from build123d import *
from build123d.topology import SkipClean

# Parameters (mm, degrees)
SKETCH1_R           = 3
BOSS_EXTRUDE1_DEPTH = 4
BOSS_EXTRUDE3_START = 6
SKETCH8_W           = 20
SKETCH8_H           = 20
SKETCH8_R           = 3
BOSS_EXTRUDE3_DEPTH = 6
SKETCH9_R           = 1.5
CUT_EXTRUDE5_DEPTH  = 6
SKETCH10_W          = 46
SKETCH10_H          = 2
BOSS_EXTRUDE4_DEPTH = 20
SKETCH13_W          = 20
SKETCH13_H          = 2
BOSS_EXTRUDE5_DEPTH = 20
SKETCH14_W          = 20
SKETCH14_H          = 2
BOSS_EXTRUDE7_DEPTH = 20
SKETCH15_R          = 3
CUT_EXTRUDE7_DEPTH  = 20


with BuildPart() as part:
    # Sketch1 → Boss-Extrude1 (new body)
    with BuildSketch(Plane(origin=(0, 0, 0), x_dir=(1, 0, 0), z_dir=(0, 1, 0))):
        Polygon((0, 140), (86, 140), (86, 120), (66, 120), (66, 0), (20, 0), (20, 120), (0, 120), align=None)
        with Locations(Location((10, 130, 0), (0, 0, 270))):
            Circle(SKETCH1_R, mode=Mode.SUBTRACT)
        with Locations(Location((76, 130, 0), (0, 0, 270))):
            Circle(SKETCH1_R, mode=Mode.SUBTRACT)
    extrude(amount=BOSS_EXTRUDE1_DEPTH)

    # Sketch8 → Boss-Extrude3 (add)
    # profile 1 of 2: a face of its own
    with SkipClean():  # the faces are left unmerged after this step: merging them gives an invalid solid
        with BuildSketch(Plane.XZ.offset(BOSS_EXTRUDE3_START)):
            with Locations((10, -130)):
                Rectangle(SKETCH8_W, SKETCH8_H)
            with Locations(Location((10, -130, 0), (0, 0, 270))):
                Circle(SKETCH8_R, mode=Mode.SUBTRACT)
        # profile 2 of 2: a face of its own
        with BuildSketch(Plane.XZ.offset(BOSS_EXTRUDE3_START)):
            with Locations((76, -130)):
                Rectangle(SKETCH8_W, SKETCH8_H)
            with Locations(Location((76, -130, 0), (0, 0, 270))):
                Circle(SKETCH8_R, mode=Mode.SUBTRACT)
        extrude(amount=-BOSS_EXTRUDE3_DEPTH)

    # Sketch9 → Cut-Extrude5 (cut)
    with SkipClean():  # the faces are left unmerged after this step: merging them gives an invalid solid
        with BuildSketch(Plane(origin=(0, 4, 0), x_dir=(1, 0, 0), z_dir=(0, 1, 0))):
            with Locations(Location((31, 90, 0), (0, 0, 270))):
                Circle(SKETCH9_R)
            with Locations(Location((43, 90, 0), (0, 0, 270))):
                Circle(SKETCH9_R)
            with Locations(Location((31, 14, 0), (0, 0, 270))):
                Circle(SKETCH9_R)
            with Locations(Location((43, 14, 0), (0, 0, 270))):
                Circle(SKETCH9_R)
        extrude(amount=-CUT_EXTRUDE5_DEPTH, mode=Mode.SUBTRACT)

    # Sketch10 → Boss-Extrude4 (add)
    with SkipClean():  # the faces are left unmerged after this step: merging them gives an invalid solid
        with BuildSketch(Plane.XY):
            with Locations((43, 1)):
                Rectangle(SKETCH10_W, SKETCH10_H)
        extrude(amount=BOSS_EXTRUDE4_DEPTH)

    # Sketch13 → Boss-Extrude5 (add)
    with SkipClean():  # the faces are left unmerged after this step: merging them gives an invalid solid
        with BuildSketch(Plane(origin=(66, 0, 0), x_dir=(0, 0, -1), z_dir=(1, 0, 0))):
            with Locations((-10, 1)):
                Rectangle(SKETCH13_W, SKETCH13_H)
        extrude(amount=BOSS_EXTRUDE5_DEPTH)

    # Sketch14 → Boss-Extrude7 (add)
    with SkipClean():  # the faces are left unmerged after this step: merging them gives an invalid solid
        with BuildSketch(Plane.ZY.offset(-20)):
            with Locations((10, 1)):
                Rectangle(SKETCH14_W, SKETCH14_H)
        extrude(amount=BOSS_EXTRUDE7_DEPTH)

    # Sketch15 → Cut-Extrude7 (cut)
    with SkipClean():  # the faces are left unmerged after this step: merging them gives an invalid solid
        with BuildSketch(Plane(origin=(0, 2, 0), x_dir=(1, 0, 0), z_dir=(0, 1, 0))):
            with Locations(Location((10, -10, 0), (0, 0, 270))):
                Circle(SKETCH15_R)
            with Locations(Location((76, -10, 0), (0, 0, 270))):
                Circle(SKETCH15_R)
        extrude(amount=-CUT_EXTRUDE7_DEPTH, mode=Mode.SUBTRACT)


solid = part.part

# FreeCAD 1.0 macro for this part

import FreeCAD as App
import Part
import Sketcher
from FreeCAD import Vector
Q = App.Units.Quantity

doc = App.newDocument("Part")
params = doc.addObject("Spreadsheet::Sheet", "Params")
for row, (alias, value) in enumerate([
    ("sketch1_diameter", "6 mm"),
    ("sketch1_width", "86 mm"),
    ("sketch1_width2", "20 mm"),
    ("sketch1_height", "120 mm"),
    ("pad1_length", "4 mm"),
    ("sketch2_diameter", "6 mm"),
    ("sketch2_width", "20 mm"),
    ("pad2_length", "6 mm"),
    ("sketch3_diameter", "3 mm"),
    ("pocket1_length", "6 mm"),
    ("sketch4_width", "46 mm"),
    ("sketch4_height", "2 mm"),
    ("pad3_length", "20 mm"),
    ("sketch5_width", "2 mm"),
    ("sketch5_height", "20 mm"),
    ("pad4_length", "20 mm"),
    ("sketch6_width", "2 mm"),
    ("sketch6_height", "20 mm"),
    ("pad5_length", "20 mm"),
    ("sketch7_diameter", "6 mm"),
    ("pocket2_length", "20 mm"),
], start=1):
    params.set(f"A{row}", alias)
    params.set(f"B{row}", "=" + value)
    params.setAlias(f"B{row}", alias)

body = doc.addObject("PartDesign::Body", "Body")

# Sketch on XZ plane
sketch1 = doc.addObject("Sketcher::SketchObject", "Sketch")
body.addObject(sketch1)
sketch1.AttachmentSupport = (doc.XZ_Plane, [""])
sketch1.MapMode = "FlatFace"
sketch1.addGeometry(Part.LineSegment(Vector(86, -140, 0), Vector(0, -140, 0)), False)
sketch1.addGeometry(Part.LineSegment(Vector(0, -140, 0), Vector(0, -120, 0)), False)
sketch1.addGeometry(Part.LineSegment(Vector(0, -120, 0), Vector(20, -120, 0)), False)
sketch1.addGeometry(Part.LineSegment(Vector(20, -120, 0), Vector(20, 0, 0)), False)
sketch1.addGeometry(Part.LineSegment(Vector(20, 0, 0), Vector(66, 0, 0)), False)
sketch1.addGeometry(Part.LineSegment(Vector(66, 0, 0), Vector(66, -120, 0)), False)
sketch1.addGeometry(Part.LineSegment(Vector(66, -120, 0), Vector(86, -120, 0)), False)
sketch1.addGeometry(Part.LineSegment(Vector(86, -120, 0), Vector(86, -140, 0)), False)
sketch1.addGeometry(Part.Circle(Vector(76, -130, 0), Vector(0, 0, 1), 3), False)
sketch1.addGeometry(Part.Circle(Vector(10, -130, 0), Vector(0, 0, 1), 3), False)
sketch1.addConstraint(Sketcher.Constraint("Coincident", 0, 2, 1, 1))
sketch1.addConstraint(Sketcher.Constraint("Coincident", 1, 2, 2, 1))
sketch1.addConstraint(Sketcher.Constraint("Coincident", 2, 2, 3, 1))
sketch1.addConstraint(Sketcher.Constraint("Coincident", 3, 2, 4, 1))
sketch1.addConstraint(Sketcher.Constraint("Coincident", 4, 2, 5, 1))
sketch1.addConstraint(Sketcher.Constraint("Coincident", 5, 2, 6, 1))
sketch1.addConstraint(Sketcher.Constraint("Coincident", 6, 2, 7, 1))
sketch1.addConstraint(Sketcher.Constraint("Coincident", 7, 2, 0, 1))
sketch1.addConstraint(Sketcher.Constraint("Horizontal", 0))
sketch1.addConstraint(Sketcher.Constraint("Vertical", 1))
sketch1.addConstraint(Sketcher.Constraint("Horizontal", 2))
sketch1.addConstraint(Sketcher.Constraint("Vertical", 3))
sketch1.addConstraint(Sketcher.Constraint("Horizontal", 4))
sketch1.addConstraint(Sketcher.Constraint("Vertical", 5))
sketch1.addConstraint(Sketcher.Constraint("Horizontal", 6))
sketch1.addConstraint(Sketcher.Constraint("Vertical", 7))
sketch1.addConstraint(Sketcher.Constraint("Equal", 8, 9))
sketch1.addConstraint(Sketcher.Constraint("PointOnObject", 0, 2, -2))
sketch1.addConstraint(Sketcher.Constraint("PointOnObject", 3, 2, -1))
sketch1.addConstraint(Sketcher.Constraint("Horizontal", 8, 3, 9, 3))
sketch1.addConstraint(Sketcher.Constraint("Horizontal", 2, 2, 5, 2))
sketch1.addConstraint(Sketcher.Constraint("Equal", 2, 6))
sketch1.addConstraint(Sketcher.Constraint("Equal", 6, 1))
sketch1.addConstraint(Sketcher.Constraint("Diameter", 8, Q("6 mm")))
sketch1.addConstraint(Sketcher.Constraint("DistanceX", 0, 2, 0, 1, Q("86 mm")))
sketch1.addConstraint(Sketcher.Constraint("DistanceX", 2, 1, 2, 2, Q("20 mm")))
sketch1.addConstraint(Sketcher.Constraint("DistanceY", 3, 1, 3, 2, Q("120 mm")))
sketch1.addConstraint(Sketcher.Constraint("DistanceX", -1, 1, 8, 3, Q("76 mm")))
sketch1.addConstraint(Sketcher.Constraint("DistanceY", 8, 3, -1, 1, Q("130 mm")))
sketch1.addConstraint(Sketcher.Constraint("DistanceX", -1, 1, 9, 3, Q("10 mm")))
sketch1.setExpression("Constraints[23]", "Params.sketch1_diameter")
sketch1.setExpression("Constraints[24]", "Params.sketch1_width")
sketch1.setExpression("Constraints[25]", "Params.sketch1_width2")
sketch1.setExpression("Constraints[26]", "Params.sketch1_height")
pad1 = doc.addObject("PartDesign::Pad", "Pad")
body.addObject(pad1)
pad1.Profile = sketch1
pad1.setExpression("Length", "Params.pad1_length")
pad1.Reversed = True

# Sketch on XZ plane
sketch2 = doc.addObject("Sketcher::SketchObject", "Sketch001")
body.addObject(sketch2)
sketch2.AttachmentSupport = (doc.XZ_Plane, [""])
sketch2.MapMode = "FlatFace"
sketch2.AttachmentOffset = App.Placement(Vector(0, 0, 6), App.Rotation())
sketch2.addGeometry(Part.LineSegment(Vector(0, -120, 0), Vector(0, -140, 0)), False)
sketch2.addGeometry(Part.LineSegment(Vector(0, -140, 0), Vector(20, -140, 0)), False)
sketch2.addGeometry(Part.LineSegment(Vector(20, -140, 0), Vector(20, -120, 0)), False)
sketch2.addGeometry(Part.LineSegment(Vector(20, -120, 0), Vector(0, -120, 0)), False)
sketch2.addGeometry(Part.Circle(Vector(10, -130, 0), Vector(0, 0, 1), 3), False)
sketch2.addGeometry(Part.LineSegment(Vector(66, -120, 0), Vector(66, -140, 0)), False)
sketch2.addGeometry(Part.LineSegment(Vector(66, -140, 0), Vector(86, -140, 0)), False)
sketch2.addGeometry(Part.LineSegment(Vector(86, -140, 0), Vector(86, -120, 0)), False)
sketch2.addGeometry(Part.LineSegment(Vector(86, -120, 0), Vector(66, -120, 0)), False)
sketch2.addGeometry(Part.Circle(Vector(76, -130, 0), Vector(0, 0, 1), 3), False)
sketch2.addConstraint(Sketcher.Constraint("Coincident", 0, 2, 1, 1))
sketch2.addConstraint(Sketcher.Constraint("Coincident", 1, 2, 2, 1))
sketch2.addConstraint(Sketcher.Constraint("Coincident", 2, 2, 3, 1))
sketch2.addConstraint(Sketcher.Constraint("Coincident", 3, 2, 0, 1))
sketch2.addConstraint(Sketcher.Constraint("Coincident", 5, 2, 6, 1))
sketch2.addConstraint(Sketcher.Constraint("Coincident", 6, 2, 7, 1))
sketch2.addConstraint(Sketcher.Constraint("Coincident", 7, 2, 8, 1))
sketch2.addConstraint(Sketcher.Constraint("Coincident", 8, 2, 5, 1))
sketch2.addConstraint(Sketcher.Constraint("Vertical", 0))
sketch2.addConstraint(Sketcher.Constraint("Horizontal", 1))
sketch2.addConstraint(Sketcher.Constraint("Vertical", 2))
sketch2.addConstraint(Sketcher.Constraint("Horizontal", 3))
sketch2.addConstraint(Sketcher.Constraint("Vertical", 5))
sketch2.addConstraint(Sketcher.Constraint("Horizontal", 6))
sketch2.addConstraint(Sketcher.Constraint("Vertical", 7))
sketch2.addConstraint(Sketcher.Constraint("Horizontal", 8))
sketch2.addConstraint(Sketcher.Constraint("Equal", 4, 9))
sketch2.addConstraint(Sketcher.Constraint("PointOnObject", 0, 2, -2))
sketch2.addConstraint(Sketcher.Constraint("Horizontal", 4, 3, 9, 3))
sketch2.addConstraint(Sketcher.Constraint("Horizontal", 1, 2, 5, 2))
sketch2.addConstraint(Sketcher.Constraint("Horizontal", 3, 2, 7, 2))
sketch2.addConstraint(Sketcher.Constraint("Equal", 3, 6))
sketch2.addConstraint(Sketcher.Constraint("Equal", 8, 0))
sketch2.addConstraint(Sketcher.Constraint("Diameter", 4, Q("6 mm")))
sketch2.addConstraint(Sketcher.Constraint("DistanceX", 1, 1, 1, 2, Q("20 mm")))
sketch2.addConstraint(Sketcher.Constraint("DistanceX", -1, 1, 4, 3, Q("10 mm")))
sketch2.addConstraint(Sketcher.Constraint("DistanceY", 4, 3, -1, 1, Q("130 mm")))
sketch2.addConstraint(Sketcher.Constraint("DistanceX", -1, 1, 9, 3, Q("76 mm")))
sketch2.addConstraint(Sketcher.Constraint("DistanceY", 0, 2, -1, 1, Q("140 mm")))
sketch2.addConstraint(Sketcher.Constraint("DistanceX", -1, 1, 5, 2, Q("66 mm")))
sketch2.setExpression("Constraints[23]", "Params.sketch2_diameter")
sketch2.setExpression("Constraints[24]", "Params.sketch2_width")
pad2 = doc.addObject("PartDesign::Pad", "Pad001")
body.addObject(pad2)
pad2.Profile = sketch2
pad2.setExpression("Length", "Params.pad2_length")
pad2.Reversed = True

# Sketch on XZ plane
sketch3 = doc.addObject("Sketcher::SketchObject", "Sketch002")
body.addObject(sketch3)
sketch3.AttachmentSupport = (doc.XZ_Plane, [""])
sketch3.MapMode = "FlatFace"
sketch3.AttachmentOffset = App.Placement(Vector(0, 0, -4), App.Rotation())
sketch3.addGeometry(Part.Circle(Vector(31, -90, 0), Vector(0, 0, 1), 1.5), False)
sketch3.addGeometry(Part.Circle(Vector(43, -90, 0), Vector(0, 0, 1), 1.5), False)
sketch3.addGeometry(Part.Circle(Vector(31, -14, 0), Vector(0, 0, 1), 1.5), False)
sketch3.addGeometry(Part.Circle(Vector(43, -14, 0), Vector(0, 0, 1), 1.5), False)
sketch3.addConstraint(Sketcher.Constraint("Equal", 0, 1))
sketch3.addConstraint(Sketcher.Constraint("Equal", 1, 2))
sketch3.addConstraint(Sketcher.Constraint("Equal", 2, 3))
sketch3.addConstraint(Sketcher.Constraint("Horizontal", 0, 3, 1, 3))
sketch3.addConstraint(Sketcher.Constraint("Horizontal", 2, 3, 3, 3))
sketch3.addConstraint(Sketcher.Constraint("Vertical", 0, 3, 2, 3))
sketch3.addConstraint(Sketcher.Constraint("Vertical", 1, 3, 3, 3))
sketch3.addConstraint(Sketcher.Constraint("Diameter", 0, Q("3 mm")))
sketch3.addConstraint(Sketcher.Constraint("DistanceX", -1, 1, 0, 3, Q("31 mm")))
sketch3.addConstraint(Sketcher.Constraint("DistanceY", 0, 3, -1, 1, Q("90 mm")))
sketch3.addConstraint(Sketcher.Constraint("DistanceX", -1, 1, 1, 3, Q("43 mm")))
sketch3.addConstraint(Sketcher.Constraint("DistanceY", 2, 3, -1, 1, Q("14 mm")))
sketch3.setExpression("Constraints[7]", "Params.sketch3_diameter")
pocket1 = doc.addObject("PartDesign::Pocket", "Pocket")
body.addObject(pocket1)
pocket1.Profile = sketch3
pocket1.setExpression("Length", "Params.pocket1_length")
pocket1.Reversed = True

# Sketch on XY plane
sketch4 = doc.addObject("Sketcher::SketchObject", "Sketch003")
body.addObject(sketch4)
sketch4.AttachmentSupport = (doc.XY_Plane, [""])
sketch4.MapMode = "FlatFace"
sketch4.addGeometry(Part.LineSegment(Vector(20, 2, 0), Vector(20, 0, 0)), False)
sketch4.addGeometry(Part.LineSegment(Vector(20, 0, 0), Vector(66, 0, 0)), False)
sketch4.addGeometry(Part.LineSegment(Vector(66, 0, 0), Vector(66, 2, 0)), False)
sketch4.addGeometry(Part.LineSegment(Vector(66, 2, 0), Vector(20, 2, 0)), False)
sketch4.addConstraint(Sketcher.Constraint("Coincident", 0, 2, 1, 1))
sketch4.addConstraint(Sketcher.Constraint("Coincident", 1, 2, 2, 1))
sketch4.addConstraint(Sketcher.Constraint("Coincident", 2, 2, 3, 1))
sketch4.addConstraint(Sketcher.Constraint("Coincident", 3, 2, 0, 1))
sketch4.addConstraint(Sketcher.Constraint("Vertical", 0))
sketch4.addConstraint(Sketcher.Constraint("Horizontal", 1))
sketch4.addConstraint(Sketcher.Constraint("Vertical", 2))
sketch4.addConstraint(Sketcher.Constraint("Horizontal", 3))
sketch4.addConstraint(Sketcher.Constraint("PointOnObject", 0, 2, -1))
sketch4.addConstraint(Sketcher.Constraint("DistanceX", 1, 1, 1, 2, Q("46 mm")))
sketch4.addConstraint(Sketcher.Constraint("DistanceY", 0, 2, 0, 1, Q("2 mm")))
sketch4.addConstraint(Sketcher.Constraint("DistanceX", -1, 1, 0, 2, Q("20 mm")))
sketch4.setExpression("Constraints[9]", "Params.sketch4_width")
sketch4.setExpression("Constraints[10]", "Params.sketch4_height")
pad3 = doc.addObject("PartDesign::Pad", "Pad002")
body.addObject(pad3)
pad3.Profile = sketch4
pad3.setExpression("Length", "Params.pad3_length")

# Sketch on YZ plane
sketch5 = doc.addObject("Sketcher::SketchObject", "Sketch004")
body.addObject(sketch5)
sketch5.AttachmentSupport = (doc.YZ_Plane, [""])
sketch5.MapMode = "FlatFace"
sketch5.AttachmentOffset = App.Placement(Vector(0, 0, 66), App.Rotation())
sketch5.addGeometry(Part.LineSegment(Vector(2, 20, 0), Vector(0, 20, 0)), False)
sketch5.addGeometry(Part.LineSegment(Vector(0, 20, 0), Vector(0, 0, 0)), False)
sketch5.addGeometry(Part.LineSegment(Vector(0, 0, 0), Vector(2, 0, 0)), False)
sketch5.addGeometry(Part.LineSegment(Vector(2, 0, 0), Vector(2, 20, 0)), False)
sketch5.addConstraint(Sketcher.Constraint("Coincident", 0, 2, 1, 1))
sketch5.addConstraint(Sketcher.Constraint("Coincident", 1, 2, 2, 1))
sketch5.addConstraint(Sketcher.Constraint("Coincident", 2, 2, 3, 1))
sketch5.addConstraint(Sketcher.Constraint("Coincident", 3, 2, 0, 1))
sketch5.addConstraint(Sketcher.Constraint("Horizontal", 0))
sketch5.addConstraint(Sketcher.Constraint("Vertical", 1))
sketch5.addConstraint(Sketcher.Constraint("Horizontal", 2))
sketch5.addConstraint(Sketcher.Constraint("Vertical", 3))
sketch5.addConstraint(Sketcher.Constraint("Coincident", 1, 2, -1, 1))
sketch5.addConstraint(Sketcher.Constraint("DistanceX", 0, 2, 0, 1, Q("2 mm")))
sketch5.addConstraint(Sketcher.Constraint("DistanceY", 1, 2, 1, 1, Q("20 mm")))
sketch5.setExpression("Constraints[9]", "Params.sketch5_width")
sketch5.setExpression("Constraints[10]", "Params.sketch5_height")
pad4 = doc.addObject("PartDesign::Pad", "Pad003")
body.addObject(pad4)
pad4.Profile = sketch5
pad4.setExpression("Length", "Params.pad4_length")

# Sketch on YZ plane
sketch6 = doc.addObject("Sketcher::SketchObject", "Sketch005")
body.addObject(sketch6)
sketch6.AttachmentSupport = (doc.YZ_Plane, [""])
sketch6.MapMode = "FlatFace"
sketch6.AttachmentOffset = App.Placement(Vector(0, 0, 20), App.Rotation())
sketch6.addGeometry(Part.LineSegment(Vector(2, 0, 0), Vector(0, 0, 0)), False)
sketch6.addGeometry(Part.LineSegment(Vector(0, 0, 0), Vector(0, 20, 0)), False)
sketch6.addGeometry(Part.LineSegment(Vector(0, 20, 0), Vector(2, 20, 0)), False)
sketch6.addGeometry(Part.LineSegment(Vector(2, 20, 0), Vector(2, 0, 0)), False)
sketch6.addConstraint(Sketcher.Constraint("Coincident", 0, 2, 1, 1))
sketch6.addConstraint(Sketcher.Constraint("Coincident", 1, 2, 2, 1))
sketch6.addConstraint(Sketcher.Constraint("Coincident", 2, 2, 3, 1))
sketch6.addConstraint(Sketcher.Constraint("Coincident", 3, 2, 0, 1))
sketch6.addConstraint(Sketcher.Constraint("Horizontal", 0))
sketch6.addConstraint(Sketcher.Constraint("Vertical", 1))
sketch6.addConstraint(Sketcher.Constraint("Horizontal", 2))
sketch6.addConstraint(Sketcher.Constraint("Vertical", 3))
sketch6.addConstraint(Sketcher.Constraint("Coincident", 0, 2, -1, 1))
sketch6.addConstraint(Sketcher.Constraint("DistanceX", 0, 2, 0, 1, Q("2 mm")))
sketch6.addConstraint(Sketcher.Constraint("DistanceY", 1, 1, 1, 2, Q("20 mm")))
sketch6.setExpression("Constraints[9]", "Params.sketch6_width")
sketch6.setExpression("Constraints[10]", "Params.sketch6_height")
pad5 = doc.addObject("PartDesign::Pad", "Pad004")
body.addObject(pad5)
pad5.Profile = sketch6
pad5.setExpression("Length", "Params.pad5_length")
pad5.Reversed = True

# Sketch on XZ plane
sketch7 = doc.addObject("Sketcher::SketchObject", "Sketch006")
body.addObject(sketch7)
sketch7.AttachmentSupport = (doc.XZ_Plane, [""])
sketch7.MapMode = "FlatFace"
sketch7.AttachmentOffset = App.Placement(Vector(0, 0, -2), App.Rotation())
sketch7.addGeometry(Part.Circle(Vector(10, 10, 0), Vector(0, 0, 1), 3), False)
sketch7.addGeometry(Part.Circle(Vector(76, 10, 0), Vector(0, 0, 1), 3), False)
sketch7.addConstraint(Sketcher.Constraint("Equal", 0, 1))
sketch7.addConstraint(Sketcher.Constraint("Horizontal", 0, 3, 1, 3))
sketch7.addConstraint(Sketcher.Constraint("Diameter", 0, Q("6 mm")))
sketch7.addConstraint(Sketcher.Constraint("DistanceX", -1, 1, 0, 3, Q("10 mm")))
sketch7.addConstraint(Sketcher.Constraint("DistanceY", -1, 1, 0, 3, Q("10 mm")))
sketch7.addConstraint(Sketcher.Constraint("DistanceX", -1, 1, 1, 3, Q("76 mm")))
sketch7.setExpression("Constraints[2]", "Params.sketch7_diameter")
pocket2 = doc.addObject("PartDesign::Pocket", "Pocket001")
body.addObject(pocket2)
pocket2.Profile = sketch7
pocket2.setExpression("Length", "Params.pocket2_length")
pocket2.Reversed = True

doc.recompute()
